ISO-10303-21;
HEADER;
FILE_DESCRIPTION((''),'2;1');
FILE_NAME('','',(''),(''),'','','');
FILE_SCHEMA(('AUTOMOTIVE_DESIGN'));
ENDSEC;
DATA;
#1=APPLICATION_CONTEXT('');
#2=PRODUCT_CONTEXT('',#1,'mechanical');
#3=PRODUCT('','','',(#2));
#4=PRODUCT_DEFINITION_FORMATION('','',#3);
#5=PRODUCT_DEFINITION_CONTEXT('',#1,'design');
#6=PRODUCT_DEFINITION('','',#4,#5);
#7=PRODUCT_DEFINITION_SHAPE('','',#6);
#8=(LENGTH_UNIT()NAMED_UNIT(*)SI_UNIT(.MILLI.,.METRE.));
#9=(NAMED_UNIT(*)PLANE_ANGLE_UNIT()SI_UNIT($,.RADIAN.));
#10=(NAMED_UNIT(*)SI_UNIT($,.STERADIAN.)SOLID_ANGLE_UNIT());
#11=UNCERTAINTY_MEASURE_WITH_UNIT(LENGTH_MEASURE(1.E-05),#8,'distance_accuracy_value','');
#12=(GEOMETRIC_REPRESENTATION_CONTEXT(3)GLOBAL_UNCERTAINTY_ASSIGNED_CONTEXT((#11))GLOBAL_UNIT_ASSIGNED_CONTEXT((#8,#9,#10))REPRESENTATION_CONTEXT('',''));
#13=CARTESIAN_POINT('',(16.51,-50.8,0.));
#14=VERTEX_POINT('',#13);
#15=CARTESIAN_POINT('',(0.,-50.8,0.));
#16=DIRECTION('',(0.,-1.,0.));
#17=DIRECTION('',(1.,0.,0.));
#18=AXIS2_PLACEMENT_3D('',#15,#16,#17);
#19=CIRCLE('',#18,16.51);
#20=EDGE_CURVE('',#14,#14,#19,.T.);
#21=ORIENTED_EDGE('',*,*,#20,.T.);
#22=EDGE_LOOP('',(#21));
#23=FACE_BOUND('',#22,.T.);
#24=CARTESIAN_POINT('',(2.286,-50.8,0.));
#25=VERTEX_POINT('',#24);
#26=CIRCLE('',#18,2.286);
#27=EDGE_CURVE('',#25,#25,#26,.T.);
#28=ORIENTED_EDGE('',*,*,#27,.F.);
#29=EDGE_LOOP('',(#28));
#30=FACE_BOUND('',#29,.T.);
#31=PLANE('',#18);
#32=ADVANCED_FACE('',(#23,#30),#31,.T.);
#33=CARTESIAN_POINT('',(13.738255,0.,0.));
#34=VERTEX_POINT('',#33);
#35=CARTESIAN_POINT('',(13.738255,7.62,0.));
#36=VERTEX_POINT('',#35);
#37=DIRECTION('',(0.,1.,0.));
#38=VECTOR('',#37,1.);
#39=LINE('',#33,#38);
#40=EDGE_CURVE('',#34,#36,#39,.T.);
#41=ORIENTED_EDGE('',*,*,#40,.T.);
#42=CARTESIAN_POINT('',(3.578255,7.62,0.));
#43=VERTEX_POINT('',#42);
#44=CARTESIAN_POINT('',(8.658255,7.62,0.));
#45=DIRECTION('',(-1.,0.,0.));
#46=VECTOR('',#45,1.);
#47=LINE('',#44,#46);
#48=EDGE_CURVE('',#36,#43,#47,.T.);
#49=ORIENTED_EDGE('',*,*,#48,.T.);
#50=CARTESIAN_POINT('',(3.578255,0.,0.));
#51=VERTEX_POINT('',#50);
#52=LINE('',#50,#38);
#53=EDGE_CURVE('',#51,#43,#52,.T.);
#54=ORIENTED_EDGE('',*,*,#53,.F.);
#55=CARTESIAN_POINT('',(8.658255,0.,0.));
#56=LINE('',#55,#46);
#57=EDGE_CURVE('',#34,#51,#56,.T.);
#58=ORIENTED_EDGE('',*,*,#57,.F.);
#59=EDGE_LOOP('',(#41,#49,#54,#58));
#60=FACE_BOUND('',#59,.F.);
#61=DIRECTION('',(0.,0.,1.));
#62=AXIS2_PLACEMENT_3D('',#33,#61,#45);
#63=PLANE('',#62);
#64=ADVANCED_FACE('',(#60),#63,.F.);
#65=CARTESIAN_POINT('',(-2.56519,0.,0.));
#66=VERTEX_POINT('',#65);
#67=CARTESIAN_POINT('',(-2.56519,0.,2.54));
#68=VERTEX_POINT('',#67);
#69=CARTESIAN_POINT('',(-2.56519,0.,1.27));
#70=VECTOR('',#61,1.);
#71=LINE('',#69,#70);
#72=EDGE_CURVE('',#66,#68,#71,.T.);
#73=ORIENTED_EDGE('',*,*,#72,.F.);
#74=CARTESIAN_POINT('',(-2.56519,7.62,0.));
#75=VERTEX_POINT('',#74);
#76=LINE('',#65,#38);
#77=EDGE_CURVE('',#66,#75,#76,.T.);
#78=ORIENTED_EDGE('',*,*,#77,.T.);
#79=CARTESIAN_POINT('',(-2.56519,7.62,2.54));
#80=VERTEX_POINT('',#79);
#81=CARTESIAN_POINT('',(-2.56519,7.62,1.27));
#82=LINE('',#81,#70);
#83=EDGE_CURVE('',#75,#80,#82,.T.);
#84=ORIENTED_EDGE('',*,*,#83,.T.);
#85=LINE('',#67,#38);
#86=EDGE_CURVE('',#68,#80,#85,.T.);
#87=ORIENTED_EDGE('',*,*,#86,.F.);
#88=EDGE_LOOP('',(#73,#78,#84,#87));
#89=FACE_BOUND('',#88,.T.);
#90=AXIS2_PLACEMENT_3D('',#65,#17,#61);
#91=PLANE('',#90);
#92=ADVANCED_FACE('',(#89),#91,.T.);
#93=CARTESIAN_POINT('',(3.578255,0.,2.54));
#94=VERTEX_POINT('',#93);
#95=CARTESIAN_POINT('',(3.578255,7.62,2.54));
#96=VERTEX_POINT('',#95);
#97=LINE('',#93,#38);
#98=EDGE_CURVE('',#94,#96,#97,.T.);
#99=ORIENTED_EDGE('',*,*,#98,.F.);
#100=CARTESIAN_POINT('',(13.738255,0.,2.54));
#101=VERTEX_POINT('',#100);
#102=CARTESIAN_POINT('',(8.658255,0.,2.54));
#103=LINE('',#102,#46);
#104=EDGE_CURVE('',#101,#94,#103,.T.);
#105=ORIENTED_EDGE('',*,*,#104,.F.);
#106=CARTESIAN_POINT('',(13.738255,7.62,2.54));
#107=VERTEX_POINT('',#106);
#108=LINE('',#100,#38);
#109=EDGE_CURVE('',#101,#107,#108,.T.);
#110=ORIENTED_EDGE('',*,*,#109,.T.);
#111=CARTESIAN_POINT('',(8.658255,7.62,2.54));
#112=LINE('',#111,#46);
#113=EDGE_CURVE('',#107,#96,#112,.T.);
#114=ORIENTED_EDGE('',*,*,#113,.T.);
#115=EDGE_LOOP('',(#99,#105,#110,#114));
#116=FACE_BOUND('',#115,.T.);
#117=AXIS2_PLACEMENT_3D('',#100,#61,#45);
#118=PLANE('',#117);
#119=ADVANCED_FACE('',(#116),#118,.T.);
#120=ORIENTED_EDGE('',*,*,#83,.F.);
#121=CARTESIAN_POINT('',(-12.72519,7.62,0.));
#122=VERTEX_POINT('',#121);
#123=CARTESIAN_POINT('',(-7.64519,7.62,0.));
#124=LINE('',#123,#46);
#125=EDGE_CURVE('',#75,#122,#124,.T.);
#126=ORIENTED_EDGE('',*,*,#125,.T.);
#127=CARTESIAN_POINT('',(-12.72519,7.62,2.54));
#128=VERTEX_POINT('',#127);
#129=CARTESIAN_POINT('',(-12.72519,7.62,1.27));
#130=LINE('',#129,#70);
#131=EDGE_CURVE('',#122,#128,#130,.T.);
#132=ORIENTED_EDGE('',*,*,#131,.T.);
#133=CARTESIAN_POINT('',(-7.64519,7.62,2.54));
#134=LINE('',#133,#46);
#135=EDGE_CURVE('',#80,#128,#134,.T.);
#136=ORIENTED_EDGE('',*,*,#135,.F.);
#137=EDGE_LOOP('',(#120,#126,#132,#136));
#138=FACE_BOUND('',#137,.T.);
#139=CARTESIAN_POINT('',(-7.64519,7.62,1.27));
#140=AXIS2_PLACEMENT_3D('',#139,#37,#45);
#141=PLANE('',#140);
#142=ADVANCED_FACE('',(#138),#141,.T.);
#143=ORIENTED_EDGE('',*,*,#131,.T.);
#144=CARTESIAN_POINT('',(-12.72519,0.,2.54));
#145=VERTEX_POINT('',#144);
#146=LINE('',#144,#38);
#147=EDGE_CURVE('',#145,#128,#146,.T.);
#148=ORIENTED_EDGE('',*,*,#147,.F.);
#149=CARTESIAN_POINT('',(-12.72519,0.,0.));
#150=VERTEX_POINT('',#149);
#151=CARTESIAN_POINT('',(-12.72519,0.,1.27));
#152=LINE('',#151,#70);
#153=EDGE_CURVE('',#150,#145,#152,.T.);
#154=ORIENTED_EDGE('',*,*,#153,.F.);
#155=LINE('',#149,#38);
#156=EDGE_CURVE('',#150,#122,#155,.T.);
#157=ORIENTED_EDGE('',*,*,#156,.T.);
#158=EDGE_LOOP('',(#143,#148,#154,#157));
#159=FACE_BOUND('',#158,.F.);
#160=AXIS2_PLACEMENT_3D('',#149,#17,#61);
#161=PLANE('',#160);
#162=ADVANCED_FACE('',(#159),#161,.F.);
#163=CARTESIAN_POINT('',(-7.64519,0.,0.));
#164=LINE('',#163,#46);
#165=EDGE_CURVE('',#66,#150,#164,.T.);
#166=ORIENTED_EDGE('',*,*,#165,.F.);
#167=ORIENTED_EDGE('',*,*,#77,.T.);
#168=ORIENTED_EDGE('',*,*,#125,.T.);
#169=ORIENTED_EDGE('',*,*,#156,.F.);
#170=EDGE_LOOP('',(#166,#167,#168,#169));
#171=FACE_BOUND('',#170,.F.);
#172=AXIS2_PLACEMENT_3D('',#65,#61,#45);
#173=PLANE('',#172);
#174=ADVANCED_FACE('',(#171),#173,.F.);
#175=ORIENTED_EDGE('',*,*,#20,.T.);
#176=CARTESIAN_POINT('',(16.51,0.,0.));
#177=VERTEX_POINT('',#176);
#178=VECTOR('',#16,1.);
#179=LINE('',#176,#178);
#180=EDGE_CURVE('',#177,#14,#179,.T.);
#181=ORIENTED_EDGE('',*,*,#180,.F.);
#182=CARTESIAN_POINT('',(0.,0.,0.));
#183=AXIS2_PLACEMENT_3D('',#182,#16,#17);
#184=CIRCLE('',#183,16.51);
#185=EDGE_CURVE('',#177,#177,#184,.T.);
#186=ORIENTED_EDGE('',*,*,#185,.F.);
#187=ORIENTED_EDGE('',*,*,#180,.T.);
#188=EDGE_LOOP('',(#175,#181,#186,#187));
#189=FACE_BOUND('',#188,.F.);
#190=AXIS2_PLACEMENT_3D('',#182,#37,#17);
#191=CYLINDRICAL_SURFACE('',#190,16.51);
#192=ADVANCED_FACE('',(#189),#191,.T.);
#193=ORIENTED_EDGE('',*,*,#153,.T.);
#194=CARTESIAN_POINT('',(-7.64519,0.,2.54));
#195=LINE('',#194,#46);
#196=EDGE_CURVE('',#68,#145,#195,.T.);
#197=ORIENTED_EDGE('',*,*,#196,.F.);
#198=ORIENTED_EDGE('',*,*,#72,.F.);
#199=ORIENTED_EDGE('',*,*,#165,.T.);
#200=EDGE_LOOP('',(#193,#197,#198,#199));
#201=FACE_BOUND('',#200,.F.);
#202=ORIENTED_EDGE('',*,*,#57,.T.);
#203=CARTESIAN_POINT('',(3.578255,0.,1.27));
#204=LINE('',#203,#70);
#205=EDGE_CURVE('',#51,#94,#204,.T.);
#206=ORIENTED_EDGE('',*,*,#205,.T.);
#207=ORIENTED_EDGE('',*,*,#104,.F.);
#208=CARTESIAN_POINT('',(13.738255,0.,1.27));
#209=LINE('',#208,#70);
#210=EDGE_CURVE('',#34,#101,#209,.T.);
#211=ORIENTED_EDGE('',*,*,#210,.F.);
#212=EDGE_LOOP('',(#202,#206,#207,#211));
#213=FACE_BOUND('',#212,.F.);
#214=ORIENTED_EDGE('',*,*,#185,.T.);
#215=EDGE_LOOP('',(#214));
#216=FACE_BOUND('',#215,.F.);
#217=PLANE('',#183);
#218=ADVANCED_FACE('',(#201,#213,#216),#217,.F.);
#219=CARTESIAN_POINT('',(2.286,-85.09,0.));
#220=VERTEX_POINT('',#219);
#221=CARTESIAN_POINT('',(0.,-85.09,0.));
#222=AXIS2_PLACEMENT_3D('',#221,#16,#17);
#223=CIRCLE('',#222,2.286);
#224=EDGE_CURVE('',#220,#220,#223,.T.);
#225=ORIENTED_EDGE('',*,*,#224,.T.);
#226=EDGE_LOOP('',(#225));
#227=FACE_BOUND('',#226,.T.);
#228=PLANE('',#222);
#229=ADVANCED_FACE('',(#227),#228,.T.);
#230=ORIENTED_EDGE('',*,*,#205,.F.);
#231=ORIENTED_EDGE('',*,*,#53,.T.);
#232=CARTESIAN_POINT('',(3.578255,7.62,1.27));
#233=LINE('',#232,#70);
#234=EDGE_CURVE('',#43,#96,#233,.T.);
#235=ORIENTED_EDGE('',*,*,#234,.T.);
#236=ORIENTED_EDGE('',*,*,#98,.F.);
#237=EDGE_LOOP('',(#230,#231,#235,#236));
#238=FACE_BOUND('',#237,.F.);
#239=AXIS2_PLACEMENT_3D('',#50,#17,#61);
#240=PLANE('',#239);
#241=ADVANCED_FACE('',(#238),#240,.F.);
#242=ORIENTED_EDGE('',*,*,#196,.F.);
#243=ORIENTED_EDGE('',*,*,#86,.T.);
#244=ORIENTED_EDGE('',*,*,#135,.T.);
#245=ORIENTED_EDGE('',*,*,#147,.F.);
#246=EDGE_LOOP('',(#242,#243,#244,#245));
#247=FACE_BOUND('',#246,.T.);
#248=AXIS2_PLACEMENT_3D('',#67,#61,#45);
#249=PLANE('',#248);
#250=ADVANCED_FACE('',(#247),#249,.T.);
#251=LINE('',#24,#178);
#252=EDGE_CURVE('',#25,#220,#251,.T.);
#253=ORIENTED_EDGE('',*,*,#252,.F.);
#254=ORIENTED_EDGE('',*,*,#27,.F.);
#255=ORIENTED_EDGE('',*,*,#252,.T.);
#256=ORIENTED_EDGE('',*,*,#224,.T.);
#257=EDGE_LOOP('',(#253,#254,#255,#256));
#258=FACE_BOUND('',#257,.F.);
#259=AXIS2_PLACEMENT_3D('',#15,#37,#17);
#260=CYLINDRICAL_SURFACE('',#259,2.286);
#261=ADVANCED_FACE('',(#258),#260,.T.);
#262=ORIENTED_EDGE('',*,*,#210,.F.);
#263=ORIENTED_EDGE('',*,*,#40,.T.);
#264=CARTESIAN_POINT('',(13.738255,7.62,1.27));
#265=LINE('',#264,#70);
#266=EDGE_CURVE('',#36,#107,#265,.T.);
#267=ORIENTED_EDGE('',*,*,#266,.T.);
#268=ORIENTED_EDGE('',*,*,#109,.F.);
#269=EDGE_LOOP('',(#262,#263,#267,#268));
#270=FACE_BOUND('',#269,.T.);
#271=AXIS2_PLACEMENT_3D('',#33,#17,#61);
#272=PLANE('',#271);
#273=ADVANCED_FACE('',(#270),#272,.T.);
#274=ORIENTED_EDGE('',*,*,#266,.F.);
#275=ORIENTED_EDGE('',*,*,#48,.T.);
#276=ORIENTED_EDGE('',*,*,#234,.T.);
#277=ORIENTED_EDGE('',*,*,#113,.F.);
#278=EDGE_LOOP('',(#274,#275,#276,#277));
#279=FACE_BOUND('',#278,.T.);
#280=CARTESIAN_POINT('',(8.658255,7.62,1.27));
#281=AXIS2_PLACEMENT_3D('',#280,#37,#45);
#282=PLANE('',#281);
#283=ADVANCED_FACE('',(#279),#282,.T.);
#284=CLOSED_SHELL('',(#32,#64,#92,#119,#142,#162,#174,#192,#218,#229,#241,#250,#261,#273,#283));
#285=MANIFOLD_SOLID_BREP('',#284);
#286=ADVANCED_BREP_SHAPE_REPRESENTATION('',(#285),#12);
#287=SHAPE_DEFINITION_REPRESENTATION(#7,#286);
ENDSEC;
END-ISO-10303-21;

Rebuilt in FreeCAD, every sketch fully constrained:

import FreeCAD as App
import Part
import Sketcher
Q = App.Units.Quantity


def add_polygon(sketch, points):
    """Adds a closed chain of lines whose ends are joined by coincident constraints."""
    first, n = sketch.GeometryCount, len(points)
    for a, b in zip(points, points[1:] + points[:1]):
        sketch.addGeometry(Part.LineSegment(App.Vector(*a, 0), App.Vector(*b, 0)), False)
    for i in range(n):
        sketch.addConstraint(Sketcher.Constraint("Coincident", first + i, 2, first + (i + 1) % n, 1))

doc = App.newDocument("Part")
params = doc.addObject("Spreadsheet::Sheet", "Params")
for row, (alias, value) in enumerate([
    ("sketch1_diameter", "1.3 in"),
    ("pad1_length", "2 in"),
    ("sketch2_diameter", "0.18 in"),
    ("pad2_length", "1.35 in"),
    ("sketch3_width", "0.4 in"),
    ("sketch3_height", "0.1 in"),
    ("pad3_length", "0.3 in"),
], start=1):
    params.set(f"A{row}", alias)
    params.set(f"B{row}", "=" + value)
    params.setAlias(f"B{row}", alias)

body = doc.addObject("PartDesign::Body", "Body")

sketch1 = doc.addObject("Sketcher::SketchObject", "Sketch")
body.addObject(sketch1)
sketch1.AttachmentSupport = (doc.XZ_Plane, [""])
sketch1.MapMode = "FlatFace"
sketch1.addGeometry(Part.Circle(App.Vector(0, 0, 0), App.Vector(0, 0, 1), 17), False)
sketch1.addConstraint([
    Sketcher.Constraint("Coincident", 0, 3, -1, 1),
    Sketcher.Constraint("Diameter", 0, Q("1.3 in")),
])
sketch1.setExpression("Constraints[1]", "Params.sketch1_diameter")
pad1 = doc.addObject("PartDesign::Pad", "Pad")
body.addObject(pad1)
pad1.Profile = sketch1
pad1.setExpression("Length", "Params.pad1_length")

sketch2 = doc.addObject("Sketcher::SketchObject", "Sketch001")
body.addObject(sketch2)
sketch2.AttachmentSupport = (doc.XZ_Plane, [""])
sketch2.MapMode = "FlatFace"
sketch2.AttachmentOffset = App.Placement(App.Vector(0, 0, 2 * 25.4), App.Rotation())
sketch2.addGeometry(Part.Circle(App.Vector(0, 0, 0), App.Vector(0, 0, 1), 2.3), False)
sketch2.addConstraint([
    Sketcher.Constraint("Coincident", 0, 3, -1, 1),
    Sketcher.Constraint("Diameter", 0, Q("0.18 in")),
])
sketch2.setExpression("Constraints[1]", "Params.sketch2_diameter")
pad2 = doc.addObject("PartDesign::Pad", "Pad001")
body.addObject(pad2)
pad2.Profile = sketch2
pad2.setExpression("Length", "Params.pad2_length")

sketch3 = doc.addObject("Sketcher::SketchObject", "Sketch002")
body.addObject(sketch3)
sketch3.AttachmentSupport = (doc.XZ_Plane, [""])
sketch3.MapMode = "FlatFace"
add_polygon(sketch3, [(13.7, 2.5), (13.7, 0), (3.6, 0), (3.6, 2.5)])
add_polygon(sketch3, [(-2.6, 2.5), (-2.6, 0), (-12.7, 0), (-12.7, 2.5)])
sketch3.addConstraint([
    Sketcher.Constraint("Vertical", 0),
    Sketcher.Constraint("Horizontal", 1),
    Sketcher.Constraint("Vertical", 2),
    Sketcher.Constraint("Horizontal", 3),
    Sketcher.Constraint("Vertical", 4),
    Sketcher.Constraint("Horizontal", 5),
    Sketcher.Constraint("Vertical", 6),
    Sketcher.Constraint("Horizontal", 7),
    Sketcher.Constraint("PointOnObject", 0, 2, -1),
    Sketcher.Constraint("PointOnObject", 4, 2, -1),
    Sketcher.Constraint("Horizontal", 3, 2, 6, 2),
    Sketcher.Constraint("Equal", 3, 5),
    Sketcher.Constraint("DistanceX", 1, 2, 1, 1, Q("0.4 in")),
    Sketcher.Constraint("DistanceY", 0, 2, 0, 1, Q("0.1 in")),
    Sketcher.Constraint("DistanceX", 4, 2, -1, 1, Q("2.56519 mm")),
    Sketcher.Constraint("DistanceX", -1, 1, 0, 2, Q("13.738255 mm")),
])
sketch3.setExpression("Constraints[20]", "Params.sketch3_width")
sketch3.setExpression("Constraints[21]", "Params.sketch3_height")
pad3 = doc.addObject("PartDesign::Pad", "Pad002")
body.addObject(pad3)
pad3.Profile = sketch3
pad3.setExpression("Length", "Params.pad3_length")
pad3.Reversed = True

doc.recompute()
